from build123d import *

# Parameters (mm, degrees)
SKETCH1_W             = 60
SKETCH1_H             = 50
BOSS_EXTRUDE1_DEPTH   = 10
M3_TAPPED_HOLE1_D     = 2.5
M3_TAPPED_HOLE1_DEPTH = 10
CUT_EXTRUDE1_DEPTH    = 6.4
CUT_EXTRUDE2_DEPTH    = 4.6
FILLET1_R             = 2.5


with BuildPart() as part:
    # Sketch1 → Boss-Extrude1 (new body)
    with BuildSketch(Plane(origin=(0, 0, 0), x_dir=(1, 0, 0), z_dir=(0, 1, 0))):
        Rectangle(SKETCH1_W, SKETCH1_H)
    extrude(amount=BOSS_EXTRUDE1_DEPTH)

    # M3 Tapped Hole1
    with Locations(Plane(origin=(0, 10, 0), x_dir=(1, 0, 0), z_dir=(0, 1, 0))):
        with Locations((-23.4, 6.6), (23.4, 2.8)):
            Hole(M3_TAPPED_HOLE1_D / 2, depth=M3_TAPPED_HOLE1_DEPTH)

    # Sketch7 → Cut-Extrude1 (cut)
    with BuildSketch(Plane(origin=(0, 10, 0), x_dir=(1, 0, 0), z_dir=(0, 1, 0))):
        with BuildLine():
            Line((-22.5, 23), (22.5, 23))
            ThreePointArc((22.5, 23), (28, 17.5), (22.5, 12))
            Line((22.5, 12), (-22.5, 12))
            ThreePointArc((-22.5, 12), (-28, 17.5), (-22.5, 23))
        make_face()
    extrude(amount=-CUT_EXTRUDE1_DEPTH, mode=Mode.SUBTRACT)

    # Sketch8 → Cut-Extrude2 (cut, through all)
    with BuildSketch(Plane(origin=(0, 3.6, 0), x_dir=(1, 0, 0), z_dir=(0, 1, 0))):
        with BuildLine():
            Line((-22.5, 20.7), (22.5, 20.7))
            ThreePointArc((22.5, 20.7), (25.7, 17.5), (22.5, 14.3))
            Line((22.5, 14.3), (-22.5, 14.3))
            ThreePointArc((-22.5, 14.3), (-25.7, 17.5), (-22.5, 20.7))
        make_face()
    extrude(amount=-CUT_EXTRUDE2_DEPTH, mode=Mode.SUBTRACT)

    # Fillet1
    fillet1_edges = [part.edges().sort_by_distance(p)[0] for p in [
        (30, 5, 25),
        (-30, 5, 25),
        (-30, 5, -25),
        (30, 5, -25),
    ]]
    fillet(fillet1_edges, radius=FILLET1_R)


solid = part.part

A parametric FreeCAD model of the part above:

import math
import FreeCAD as App
import Part
import Sketcher
Q = App.Units.Quantity


def edges_at(feature, points):
    """Names of the edges that pass closest to the given points."""
    edges = feature.Shape.Edges
    near = lambda p: min(range(len(edges)), key=lambda i: edges[i].distToShape(Part.Vertex(*p))[0])
    return sorted({f"Edge{near(p) + 1}" for p in points})

doc = App.newDocument("Part")
params = doc.addObject("Spreadsheet::Sheet", "Params")
for row, (alias, value) in enumerate([
    ("sketch1_width", "60 mm"),
    ("sketch1_height", "50 mm"),
    ("pad1_length", "10 mm"),
    ("sketch2_diameter", "2.5 mm"),
    ("hole_diameter", "2.5 mm"),
    ("hole_depth", "10 mm"),
    ("sketch3_radius", "5.5 mm"),
    ("sketch3_width", "45 mm"),
    ("pocket1_length", "6.4 mm"),
    ("sketch4_radius", "3.2 mm"),
    ("sketch4_width", "45 mm"),
    ("fillet_radius", "2.5 mm"),
], start=1):
    params.set(f"A{row}", alias)
    params.set(f"B{row}", "=" + value)
    params.setAlias(f"B{row}", alias)

body = doc.addObject("PartDesign::Body", "Body")

# Sketch on XZ plane
sketch1 = body.newObject("Sketcher::SketchObject", "Sketch")
sketch1.AttachmentSupport = (doc.getObject("XZ_Plane"), [""])
sketch1.MapMode = "FlatFace"
sketch1.addGeometry(Part.LineSegment(App.Vector(-30, -25, 0), App.Vector(-30, 25, 0)), False)
sketch1.addGeometry(Part.LineSegment(App.Vector(-30, 25, 0), App.Vector(30, 25, 0)), False)
sketch1.addGeometry(Part.LineSegment(App.Vector(30, 25, 0), App.Vector(30, -25, 0)), False)
sketch1.addGeometry(Part.LineSegment(App.Vector(30, -25, 0), App.Vector(-30, -25, 0)), False)
sketch1.addConstraint(Sketcher.Constraint("Coincident", 0, 2, 1, 1))
sketch1.addConstraint(Sketcher.Constraint("Coincident", 1, 2, 2, 1))
sketch1.addConstraint(Sketcher.Constraint("Coincident", 2, 2, 3, 1))
sketch1.addConstraint(Sketcher.Constraint("Coincident", 3, 2, 0, 1))
sketch1.addConstraint(Sketcher.Constraint("Vertical", 0))
sketch1.addConstraint(Sketcher.Constraint("Horizontal", 1))
sketch1.addConstraint(Sketcher.Constraint("Vertical", 2))
sketch1.addConstraint(Sketcher.Constraint("Horizontal", 3))
sketch1.addConstraint(Sketcher.Constraint("Symmetric", 0, 2, 2, 2, -1, 1))
sketch1.addConstraint(Sketcher.Constraint("DistanceX", 1, 1, 1, 2, Q("60 mm")))
sketch1.addConstraint(Sketcher.Constraint("DistanceY", 0, 1, 0, 2, Q("50 mm")))
sketch1.setExpression("Constraints[9]", "Params.sketch1_width")
sketch1.setExpression("Constraints[10]", "Params.sketch1_height")
pad1 = body.newObject("PartDesign::Pad", "Pad")
pad1.Profile = sketch1
pad1.setExpression("Length", "Params.pad1_length")
pad1.Reversed = True

# Sketch on XZ plane
sketch2 = body.newObject("Sketcher::SketchObject", "Sketch001")
sketch2.AttachmentSupport = (doc.getObject("XZ_Plane"), [""])
sketch2.MapMode = "FlatFace"
sketch2.AttachmentOffset = App.Placement(App.Vector(0, 0, -10), App.Rotation())
sketch2.addGeometry(Part.Circle(App.Vector(-23.4, -6.6, 0), App.Vector(0, 0, 1), 1.25), False)
sketch2.addGeometry(Part.Circle(App.Vector(23.4, -2.8, 0), App.Vector(0, 0, 1), 1.25), False)
sketch2.addConstraint(Sketcher.Constraint("Equal", 0, 1))
sketch2.addConstraint(Sketcher.Constraint("Diameter", 0, Q("2.5 mm")))
sketch2.addConstraint(Sketcher.Constraint("DistanceX", 0, 3, -1, 1, Q("23.4 mm")))
sketch2.addConstraint(Sketcher.Constraint("DistanceY", 0, 3, -1, 1, Q("6.6 mm")))
sketch2.addConstraint(Sketcher.Constraint("DistanceX", -1, 1, 1, 3, Q("23.4 mm")))
sketch2.addConstraint(Sketcher.Constraint("DistanceY", 1, 3, -1, 1, Q("2.8 mm")))
sketch2.setExpression("Constraints[1]", "Params.sketch2_diameter")
doc.recompute()
hole = body.newObject("PartDesign::Hole", "Hole")
hole.Profile = sketch2
hole.ThreadType = "None"
hole.setExpression("Diameter", "Params.hole_diameter")
hole.DepthType = "Dimension"
hole.setExpression("Depth", "Params.hole_depth")
hole.DrillPoint = "Flat"
hole.Reversed = True

# Sketch on XZ plane
sketch3 = body.newObject("Sketcher::SketchObject", "Sketch002")
sketch3.AttachmentSupport = (doc.getObject("XZ_Plane"), [""])
sketch3.MapMode = "FlatFace"
sketch3.AttachmentOffset = App.Placement(App.Vector(0, 0, -10), App.Rotation())
sketch3.addGeometry(Part.LineSegment(App.Vector(22.5, -23, 0), App.Vector(-22.5, -23, 0)), False)
sketch3.addGeometry(Part.ArcOfCircle(Part.Circle(App.Vector(-22.5, -17.5, 0), App.Vector(0, 0, 1), 5.5), math.radians(90), math.radians(270)), False)
sketch3.addGeometry(Part.LineSegment(App.Vector(-22.5, -12, 0), App.Vector(22.5, -12, 0)), False)
sketch3.addGeometry(Part.ArcOfCircle(Part.Circle(App.Vector(22.5, -17.5, 0), App.Vector(0, 0, 1), 5.5), math.radians(-90), math.radians(90)), False)
sketch3.addConstraint(Sketcher.Constraint("Tangent", 0, 2, 1, 2))
sketch3.addConstraint(Sketcher.Constraint("Tangent", 1, 1, 2, 1))
sketch3.addConstraint(Sketcher.Constraint("Tangent", 2, 2, 3, 2))
sketch3.addConstraint(Sketcher.Constraint("Tangent", 3, 1, 0, 1))
sketch3.addConstraint(Sketcher.Constraint("Horizontal", 0))
sketch3.addConstraint(Sketcher.Constraint("Horizontal", 2))
sketch3.addConstraint(Sketcher.Constraint("Radius", 1, Q("5.5 mm")))
sketch3.addConstraint(Sketcher.Constraint("DistanceX", 0, 2, 0, 1, Q("45 mm")))
sketch3.addConstraint(Sketcher.Constraint("DistanceY", 0, 2, -1, 1, Q("23 mm")))
sketch3.addConstraint(Sketcher.Constraint("DistanceX", 1, 3, -1, 1, Q("22.5 mm")))
sketch3.setExpression("Constraints[6]", "Params.sketch3_radius")
sketch3.setExpression("Constraints[7]", "Params.sketch3_width")
pocket1 = body.newObject("PartDesign::Pocket", "Pocket")
pocket1.Profile = sketch3
pocket1.setExpression("Length", "Params.pocket1_length")
pocket1.Reversed = True

# Sketch on XZ plane
sketch4 = body.newObject("Sketcher::SketchObject", "Sketch003")
sketch4.AttachmentSupport = (doc.getObject("XZ_Plane"), [""])
sketch4.MapMode = "FlatFace"
sketch4.AttachmentOffset = App.Placement(App.Vector(0, 0, -3.6), App.Rotation())
sketch4.addGeometry(Part.LineSegment(App.Vector(22.5, -20.7, 0), App.Vector(-22.5, -20.7, 0)), False)
sketch4.addGeometry(Part.ArcOfCircle(Part.Circle(App.Vector(-22.5, -17.5, 0), App.Vector(0, 0, 1), 3.2), math.radians(90), math.radians(270)), False)
sketch4.addGeometry(Part.LineSegment(App.Vector(-22.5, -14.3, 0), App.Vector(22.5, -14.3, 0)), False)
sketch4.addGeometry(Part.ArcOfCircle(Part.Circle(App.Vector(22.5, -17.5, 0), App.Vector(0, 0, 1), 3.2), math.radians(-90), math.radians(90)), False)
sketch4.addConstraint(Sketcher.Constraint("Tangent", 0, 2, 1, 2))
sketch4.addConstraint(Sketcher.Constraint("Tangent", 1, 1, 2, 1))
sketch4.addConstraint(Sketcher.Constraint("Tangent", 2, 2, 3, 2))
sketch4.addConstraint(Sketcher.Constraint("Tangent", 3, 1, 0, 1))
sketch4.addConstraint(Sketcher.Constraint("Horizontal", 0))
sketch4.addConstraint(Sketcher.Constraint("Horizontal", 2))
sketch4.addConstraint(Sketcher.Constraint("Radius", 1, Q("3.2 mm")))
sketch4.addConstraint(Sketcher.Constraint("DistanceX", 0, 2, 0, 1, Q("45 mm")))
sketch4.addConstraint(Sketcher.Constraint("DistanceX", 1, 3, -1, 1, Q("22.5 mm")))
sketch4.addConstraint(Sketcher.Constraint("DistanceY", 1, 3, -1, 1, Q("17.5 mm")))
sketch4.setExpression("Constraints[6]", "Params.sketch4_radius")
sketch4.setExpression("Constraints[7]", "Params.sketch4_width")
pocket2 = body.newObject("PartDesign::Pocket", "Pocket001")
pocket2.Profile = sketch4
pocket2.Type = "ThroughAll"
pocket2.Reversed = True
doc.recompute()

fillet = body.newObject("PartDesign::Fillet", "Fillet")
fillet.Base = (pocket2, edges_at(pocket2, [
    (30, 5, 25),
    (-30, 5, 25),
    (-30, 5, -25),
    (30, 5, -25),
]))
fillet.setExpression("Radius", "Params.fillet_radius")

doc.recompute()
